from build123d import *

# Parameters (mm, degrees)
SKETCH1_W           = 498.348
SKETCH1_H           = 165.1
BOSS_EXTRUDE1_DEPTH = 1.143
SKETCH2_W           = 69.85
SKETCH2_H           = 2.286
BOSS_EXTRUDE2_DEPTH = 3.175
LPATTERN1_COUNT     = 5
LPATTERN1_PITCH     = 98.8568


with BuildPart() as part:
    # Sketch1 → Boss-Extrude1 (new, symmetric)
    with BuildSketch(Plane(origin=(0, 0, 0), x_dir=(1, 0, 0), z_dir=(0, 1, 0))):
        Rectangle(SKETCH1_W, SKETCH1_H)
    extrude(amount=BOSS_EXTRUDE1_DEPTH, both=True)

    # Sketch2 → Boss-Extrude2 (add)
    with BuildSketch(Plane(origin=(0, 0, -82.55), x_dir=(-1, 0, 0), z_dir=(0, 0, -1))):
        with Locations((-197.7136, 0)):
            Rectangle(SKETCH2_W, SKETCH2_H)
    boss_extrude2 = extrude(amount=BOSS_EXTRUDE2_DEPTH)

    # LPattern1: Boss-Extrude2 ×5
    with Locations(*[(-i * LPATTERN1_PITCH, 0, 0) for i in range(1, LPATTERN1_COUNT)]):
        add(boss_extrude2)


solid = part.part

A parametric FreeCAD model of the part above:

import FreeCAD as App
import Part
import Sketcher

V = App.Vector
Q = App.Units.Quantity

doc = App.newDocument("Part")
params = doc.addObject("Spreadsheet::Sheet", "Params")
for row, (alias, value) in enumerate([
    ("sketch1_height", "6.5 in"),
    ("sketch1_width", "19.62 in"),
    ("pad1_length", "0.09 in"),
    ("sketch2_width", "2.75 in"),
    ("sketch2_height", "0.09 in"),
    ("pad2_length", "0.125 in"),
    ("linearpattern_pitch", "3.892 in"),
], start=1):
    params.set(f"A{row}", alias)
    params.set(f"B{row}", "=" + value)
    params.setAlias(f"B{row}", alias)

body = doc.addObject("PartDesign::Body", "Body")

sketch1 = body.newObject("Sketcher::SketchObject", "Sketch")
sketch1.AttachmentSupport = (doc.getObject("XZ_Plane"), [""])
sketch1.MapMode = "FlatFace"
sketch1.addGeometry([
    Part.LineSegment(V(-249.174, -82.55, 0), V(-249.174, 82.55, 0)),
    Part.LineSegment(V(-249.174, 82.55, 0), V(249.174, 82.55, 0)),
    Part.LineSegment(V(249.174, 82.55, 0), V(249.174, -82.55, 0)),
    Part.LineSegment(V(249.174, -82.55, 0), V(-249.174, -82.55, 0)),
], False)
sketch1.addConstraint([
    Sketcher.Constraint("Coincident", 0, 2, 1, 1),
    Sketcher.Constraint("Coincident", 1, 2, 2, 1),
    Sketcher.Constraint("Coincident", 2, 2, 3, 1),
    Sketcher.Constraint("Coincident", 3, 2, 0, 1),
    Sketcher.Constraint("Vertical", 0),
    Sketcher.Constraint("Horizontal", 1),
    Sketcher.Constraint("Vertical", 2),
    Sketcher.Constraint("Horizontal", 3),
    Sketcher.Constraint("Symmetric", 0, 2, 2, 2, -1, 1),
    Sketcher.Constraint("DistanceY", 0, 1, 0, 2, Q("6.5 in")),
    Sketcher.Constraint("DistanceX", 1, 1, 1, 2, Q("19.62 in")),
])
sketch1.setExpression("Constraints[9]", "Params.sketch1_height")
sketch1.setExpression("Constraints[10]", "Params.sketch1_width")
pad1 = body.newObject("PartDesign::Pad", "Pad")
pad1.Profile = sketch1
pad1.setExpression("Length", "Params.pad1_length")
pad1.Midplane = True

sketch2 = body.newObject("Sketcher::SketchObject", "Sketch001")
sketch2.AttachmentSupport = (doc.getObject("XY_Plane"), [""])
sketch2.MapMode = "FlatFace"
sketch2.AttachmentOffset = App.Placement(V(0, 0, -3.25 * 25.4), App.Rotation())
sketch2.addGeometry([
    Part.LineSegment(V(232.6386, 1.143, 0), V(232.6386, -1.143, 0)),
    Part.LineSegment(V(232.6386, -1.143, 0), V(162.7886, -1.143, 0)),
    Part.LineSegment(V(162.7886, -1.143, 0), V(162.7886, 1.143, 0)),
    Part.LineSegment(V(162.7886, 1.143, 0), V(232.6386, 1.143, 0)),
], False)
sketch2.addConstraint([
    Sketcher.Constraint("Coincident", 0, 2, 1, 1),
    Sketcher.Constraint("Coincident", 1, 2, 2, 1),
    Sketcher.Constraint("Coincident", 2, 2, 3, 1),
    Sketcher.Constraint("Coincident", 3, 2, 0, 1),
    Sketcher.Constraint("Vertical", 0),
    Sketcher.Constraint("Horizontal", 1),
    Sketcher.Constraint("Vertical", 2),
    Sketcher.Constraint("Horizontal", 3),
    Sketcher.Constraint("DistanceX", 1, 2, 1, 1, Q("2.75 in")),
    Sketcher.Constraint("DistanceY", 0, 2, 0, 1, Q("0.09 in")),
    Sketcher.Constraint("DistanceX", -1, 1, 0, 2, Q("9.159 in")),
    Sketcher.Constraint("DistanceY", 0, 2, -1, 1, Q("0.045 in")),
])
sketch2.setExpression("Constraints[8]", "Params.sketch2_width")
sketch2.setExpression("Constraints[9]", "Params.sketch2_height")
pad2 = body.newObject("PartDesign::Pad", "Pad001")
pad2.Profile = sketch2
pad2.setExpression("Length", "Params.pad2_length")
pad2.Reversed = True
doc.recompute()

linearpattern = body.newObject("PartDesign::LinearPattern", "LinearPattern")
linearpattern.Originals = [pad2]
linearpattern.Direction = (doc.getObject("X_Axis"), [""])
linearpattern.Mode = "offset"
linearpattern.setExpression("Offset", "Params.linearpattern_pitch")
linearpattern.Occurrences = 5
linearpattern.Reversed = True
body.Tip = linearpattern

doc.recompute()
